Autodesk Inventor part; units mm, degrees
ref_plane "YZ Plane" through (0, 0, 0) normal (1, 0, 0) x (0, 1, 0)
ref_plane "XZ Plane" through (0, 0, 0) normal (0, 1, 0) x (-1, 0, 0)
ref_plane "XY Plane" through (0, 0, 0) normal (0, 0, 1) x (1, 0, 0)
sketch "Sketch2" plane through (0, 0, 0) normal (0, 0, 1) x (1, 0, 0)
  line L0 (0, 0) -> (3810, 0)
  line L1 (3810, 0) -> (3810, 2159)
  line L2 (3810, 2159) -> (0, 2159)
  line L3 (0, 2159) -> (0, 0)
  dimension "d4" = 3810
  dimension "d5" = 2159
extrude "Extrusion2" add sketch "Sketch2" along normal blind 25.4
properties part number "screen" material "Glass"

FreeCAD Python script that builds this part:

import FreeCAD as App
import Part
import Sketcher
Q = App.Units.Quantity


def add_polygon(sketch, points):
    """Adds a closed chain of lines whose ends are joined by coincident constraints."""
    first, n = sketch.GeometryCount, len(points)
    for a, b in zip(points, points[1:] + points[:1]):
        sketch.addGeometry(Part.LineSegment(App.Vector(*a, 0), App.Vector(*b, 0)), False)
    for i in range(n):
        sketch.addConstraint(Sketcher.Constraint("Coincident", first + i, 2, first + (i + 1) % n, 1))

doc = App.newDocument("Part")
body = doc.addObject("PartDesign::Body", "Body")

# Sketch on XY plane
sketch1 = body.newObject("Sketcher::SketchObject", "Sketch")
sketch1.AttachmentSupport = (doc.getObject("XY_Plane"), [""])
sketch1.MapMode = "FlatFace"
add_polygon(sketch1, [(0, 2159), (0, 0), (3810, 0), (3810, 2159)])  # lines 0-3
sketch1.addConstraint([
    Sketcher.Constraint("Vertical", 0),
    Sketcher.Constraint("Horizontal", 1),
    Sketcher.Constraint("Vertical", 2),
    Sketcher.Constraint("Horizontal", 3),
    Sketcher.Constraint("Coincident", 0, 2, -1, 1),
    Sketcher.Constraint("DistanceX", 1, 1, 1, 2, Q("150 in")),
    Sketcher.Constraint("DistanceY", 0, 2, 0, 1, Q("85 in")),
])
pad1 = body.newObject("PartDesign::Pad", "Pad")
pad1.Profile = sketch1
pad1.Length = Q("1 in")

doc.recompute()
